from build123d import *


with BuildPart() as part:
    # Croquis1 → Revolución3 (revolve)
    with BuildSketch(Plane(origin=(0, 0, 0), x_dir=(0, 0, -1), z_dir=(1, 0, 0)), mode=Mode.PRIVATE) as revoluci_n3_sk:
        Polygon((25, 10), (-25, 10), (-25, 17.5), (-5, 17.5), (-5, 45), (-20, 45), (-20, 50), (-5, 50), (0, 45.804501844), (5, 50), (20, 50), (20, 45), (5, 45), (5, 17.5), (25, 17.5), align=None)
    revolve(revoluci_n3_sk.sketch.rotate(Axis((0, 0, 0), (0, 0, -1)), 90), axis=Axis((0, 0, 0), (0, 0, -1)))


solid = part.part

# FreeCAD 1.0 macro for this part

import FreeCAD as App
import Part
import Sketcher
Q = App.Units.Quantity

doc = App.newDocument("Part")
body = doc.addObject("PartDesign::Body", "Body")

# Sketch on YZ plane
sketch1 = body.newObject("Sketcher::SketchObject", "Sketch")
sketch1.AttachmentSupport = (doc.getObject("YZ_Plane"), [""])
sketch1.MapMode = "FlatFace"
sketch1.addGeometry(Part.LineSegment(App.Vector(10, 25, 0), App.Vector(10, -25, 0)), False)
sketch1.addGeometry(Part.LineSegment(App.Vector(10, -25, 0), App.Vector(18, -25, 0)), False)
sketch1.addGeometry(Part.LineSegment(App.Vector(18, -25, 0), App.Vector(18, -5, 0)), False)
sketch1.addGeometry(Part.LineSegment(App.Vector(18, -5, 0), App.Vector(45, -5, 0)), False)
sketch1.addGeometry(Part.LineSegment(App.Vector(45, -5, 0), App.Vector(45, -20, 0)), False)
sketch1.addGeometry(Part.LineSegment(App.Vector(45, -20, 0), App.Vector(50, -20, 0)), False)
sketch1.addGeometry(Part.LineSegment(App.Vector(50, -20, 0), App.Vector(50, -5, 0)), False)
sketch1.addGeometry(Part.LineSegment(App.Vector(50, -5, 0), App.Vector(46, 0, 0)), False)
sketch1.addGeometry(Part.LineSegment(App.Vector(46, 0, 0), App.Vector(50, 5, 0)), False)
sketch1.addGeometry(Part.LineSegment(App.Vector(50, 5, 0), App.Vector(50, 20, 0)), False)
sketch1.addGeometry(Part.LineSegment(App.Vector(50, 20, 0), App.Vector(45, 20, 0)), False)
sketch1.addGeometry(Part.LineSegment(App.Vector(45, 20, 0), App.Vector(45, 5, 0)), False)
sketch1.addGeometry(Part.LineSegment(App.Vector(45, 5, 0), App.Vector(18, 5, 0)), False)
sketch1.addGeometry(Part.LineSegment(App.Vector(18, 5, 0), App.Vector(18, 25, 0)), False)
sketch1.addGeometry(Part.LineSegment(App.Vector(18, 25, 0), App.Vector(10, 25, 0)), False)
sketch1.addConstraint(Sketcher.Constraint("Coincident", 0, 2, 1, 1))
sketch1.addConstraint(Sketcher.Constraint("Coincident", 1, 2, 2, 1))
sketch1.addConstraint(Sketcher.Constraint("Coincident", 2, 2, 3, 1))
sketch1.addConstraint(Sketcher.Constraint("Coincident", 3, 2, 4, 1))
sketch1.addConstraint(Sketcher.Constraint("Coincident", 4, 2, 5, 1))
sketch1.addConstraint(Sketcher.Constraint("Coincident", 5, 2, 6, 1))
sketch1.addConstraint(Sketcher.Constraint("Coincident", 6, 2, 7, 1))
sketch1.addConstraint(Sketcher.Constraint("Coincident", 7, 2, 8, 1))
sketch1.addConstraint(Sketcher.Constraint("Coincident", 8, 2, 9, 1))
sketch1.addConstraint(Sketcher.Constraint("Coincident", 9, 2, 10, 1))
sketch1.addConstraint(Sketcher.Constraint("Coincident", 10, 2, 11, 1))
sketch1.addConstraint(Sketcher.Constraint("Coincident", 11, 2, 12, 1))
sketch1.addConstraint(Sketcher.Constraint("Coincident", 12, 2, 13, 1))
sketch1.addConstraint(Sketcher.Constraint("Coincident", 13, 2, 14, 1))
sketch1.addConstraint(Sketcher.Constraint("Coincident", 14, 2, 0, 1))
sketch1.addConstraint(Sketcher.Constraint("Vertical", 0))
sketch1.addConstraint(Sketcher.Constraint("Horizontal", 1))
sketch1.addConstraint(Sketcher.Constraint("Vertical", 2))
sketch1.addConstraint(Sketcher.Constraint("Horizontal", 3))
sketch1.addConstraint(Sketcher.Constraint("Vertical", 4))
sketch1.addConstraint(Sketcher.Constraint("Horizontal", 5))
sketch1.addConstraint(Sketcher.Constraint("Vertical", 6))
sketch1.addConstraint(Sketcher.Constraint("Vertical", 9))
sketch1.addConstraint(Sketcher.Constraint("Horizontal", 10))
sketch1.addConstraint(Sketcher.Constraint("Vertical", 11))
sketch1.addConstraint(Sketcher.Constraint("Horizontal", 12))
sketch1.addConstraint(Sketcher.Constraint("Vertical", 13))
sketch1.addConstraint(Sketcher.Constraint("Horizontal", 14))
sketch1.addConstraint(Sketcher.Constraint("Symmetric", 6, 2, 8, 2, -1))
sketch1.addConstraint(Sketcher.Constraint("Symmetric", 4, 2, 10, 2, -1))
sketch1.addConstraint(Sketcher.Constraint("Symmetric", 2, 2, 12, 2, -1))
sketch1.addConstraint(Sketcher.Constraint("PointOnObject", 7, 2, -1))
sketch1.addConstraint(Sketcher.Constraint("Horizontal", 3, 2, 6, 2))
sketch1.addConstraint(Sketcher.Constraint("Equal", 2, 13))
sketch1.addConstraint(Sketcher.Constraint("DistanceX", 5, 1, 5, 2, Q("5 mm")))
sketch1.addConstraint(Sketcher.Constraint("DistanceY", 0, 2, 0, 1, Q("50 mm")))
sketch1.addConstraint(Sketcher.Constraint("DistanceY", 2, 1, 2, 2, Q("20 mm")))
sketch1.addConstraint(Sketcher.Constraint("DistanceY", 4, 2, 4, 1, Q("15 mm")))
sketch1.addConstraint(Sketcher.Constraint("Angle", 7, Q("130 deg")))
sketch1.addConstraint(Sketcher.Constraint("DistanceX", 1, 1, 1, 2, Q("7.5 mm")))
sketch1.addConstraint(Sketcher.Constraint("DistanceX", 3, 1, 3, 2, Q("27.5 mm")))
sketch1.addConstraint(Sketcher.Constraint("DistanceX", -1, 1, 0, 2, Q("10 mm")))
revolution = body.newObject("PartDesign::Revolution", "Revolution")
revolution.Profile = sketch1
revolution.ReferenceAxis = (sketch1, ["V_Axis"])
revolution.Angle = 360

doc.recompute()
